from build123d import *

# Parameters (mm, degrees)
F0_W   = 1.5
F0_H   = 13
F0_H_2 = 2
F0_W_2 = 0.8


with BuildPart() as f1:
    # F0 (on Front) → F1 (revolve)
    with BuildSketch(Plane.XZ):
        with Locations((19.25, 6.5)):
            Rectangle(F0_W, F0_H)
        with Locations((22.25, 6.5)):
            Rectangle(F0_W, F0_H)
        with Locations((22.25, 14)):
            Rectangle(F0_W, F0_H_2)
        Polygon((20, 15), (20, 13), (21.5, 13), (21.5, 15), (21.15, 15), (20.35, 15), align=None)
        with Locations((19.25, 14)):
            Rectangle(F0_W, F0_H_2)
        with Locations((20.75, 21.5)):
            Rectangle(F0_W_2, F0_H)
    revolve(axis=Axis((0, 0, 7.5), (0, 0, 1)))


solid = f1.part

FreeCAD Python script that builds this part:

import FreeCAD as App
import Part
import Sketcher

doc = App.newDocument("Part")
body = doc.addObject("PartDesign::Body", "Body")

sketch1 = body.newObject("Sketcher::SketchObject", "Sketch")
sketch1.AttachmentSupport = (doc.getObject("XZ_Plane"), [""])
sketch1.MapMode = "FlatFace"
sketch1.addGeometry([
    Part.LineSegment(App.Vector(18.5, 0, 0), App.Vector(20, 0, 0)),
    Part.LineSegment(App.Vector(20, 0, 0), App.Vector(20, 13, 0)),
    Part.LineSegment(App.Vector(20, 13, 0), App.Vector(21.5, 13, 0)),
    Part.LineSegment(App.Vector(21.5, 13, 0), App.Vector(21.5, 0, 0)),
    Part.LineSegment(App.Vector(21.5, 0, 0), App.Vector(23, 0, 0)),
    Part.LineSegment(App.Vector(23, 0, 0), App.Vector(23, 15, 0)),
    Part.LineSegment(App.Vector(23, 15, 0), App.Vector(21.1, 15, 0)),
    Part.LineSegment(App.Vector(21.1, 15, 0), App.Vector(21.1, 28, 0)),
    Part.LineSegment(App.Vector(21.1, 28, 0), App.Vector(20.4, 28, 0)),
    Part.LineSegment(App.Vector(20.4, 28, 0), App.Vector(20.4, 15, 0)),
    Part.LineSegment(App.Vector(20.4, 15, 0), App.Vector(18.5, 15, 0)),
    Part.LineSegment(App.Vector(18.5, 15, 0), App.Vector(18.5, 0, 0)),
], False)
sketch1.addConstraint([
    Sketcher.Constraint("Coincident", 0, 2, 1, 1),
    Sketcher.Constraint("Coincident", 1, 2, 2, 1),
    Sketcher.Constraint("Coincident", 2, 2, 3, 1),
    Sketcher.Constraint("Coincident", 3, 2, 4, 1),
    Sketcher.Constraint("Coincident", 4, 2, 5, 1),
    Sketcher.Constraint("Coincident", 5, 2, 6, 1),
    Sketcher.Constraint("Coincident", 6, 2, 7, 1),
    Sketcher.Constraint("Coincident", 7, 2, 8, 1),
    Sketcher.Constraint("Coincident", 8, 2, 9, 1),
    Sketcher.Constraint("Coincident", 9, 2, 10, 1),
    Sketcher.Constraint("Coincident", 10, 2, 11, 1),
    Sketcher.Constraint("Coincident", 11, 2, 0, 1),
    Sketcher.Constraint("Horizontal", 0),
    Sketcher.Constraint("Vertical", 1),
    Sketcher.Constraint("Horizontal", 2),
    Sketcher.Constraint("Vertical", 3),
    Sketcher.Constraint("Horizontal", 4),
    Sketcher.Constraint("Vertical", 5),
    Sketcher.Constraint("Horizontal", 6),
    Sketcher.Constraint("Vertical", 7),
    Sketcher.Constraint("Horizontal", 8),
    Sketcher.Constraint("Vertical", 9),
    Sketcher.Constraint("Horizontal", 10),
    Sketcher.Constraint("Vertical", 11),
    Sketcher.Constraint("PointOnObject", 0, 2, -1),
    Sketcher.Constraint("PointOnObject", 3, 2, -1),
    Sketcher.Constraint("Horizontal", 6, 2, 9, 2),
    Sketcher.Constraint("Equal", 0, 2),
    Sketcher.Constraint("Equal", 2, 4),
    Sketcher.Constraint("Equal", 6, 10),
    Sketcher.Constraint("Equal", 3, 7),
    Sketcher.Constraint("DistanceY", 1, 1, 1, 2, 13.0),
    Sketcher.Constraint("DistanceY", 5, 1, 5, 2, 15.0),
    Sketcher.Constraint("DistanceX", 0, 1, 0, 2, 1.5),
    Sketcher.Constraint("DistanceX", 8, 2, 8, 1, 0.8),
    Sketcher.Constraint("DistanceX", -1, 1, 0, 2, 20.0),
])
revolution = body.newObject("PartDesign::Revolution", "Revolution")
revolution.Profile = sketch1
revolution.ReferenceAxis = (sketch1, ["V_Axis"])
revolution.Angle = 360

doc.recompute()
